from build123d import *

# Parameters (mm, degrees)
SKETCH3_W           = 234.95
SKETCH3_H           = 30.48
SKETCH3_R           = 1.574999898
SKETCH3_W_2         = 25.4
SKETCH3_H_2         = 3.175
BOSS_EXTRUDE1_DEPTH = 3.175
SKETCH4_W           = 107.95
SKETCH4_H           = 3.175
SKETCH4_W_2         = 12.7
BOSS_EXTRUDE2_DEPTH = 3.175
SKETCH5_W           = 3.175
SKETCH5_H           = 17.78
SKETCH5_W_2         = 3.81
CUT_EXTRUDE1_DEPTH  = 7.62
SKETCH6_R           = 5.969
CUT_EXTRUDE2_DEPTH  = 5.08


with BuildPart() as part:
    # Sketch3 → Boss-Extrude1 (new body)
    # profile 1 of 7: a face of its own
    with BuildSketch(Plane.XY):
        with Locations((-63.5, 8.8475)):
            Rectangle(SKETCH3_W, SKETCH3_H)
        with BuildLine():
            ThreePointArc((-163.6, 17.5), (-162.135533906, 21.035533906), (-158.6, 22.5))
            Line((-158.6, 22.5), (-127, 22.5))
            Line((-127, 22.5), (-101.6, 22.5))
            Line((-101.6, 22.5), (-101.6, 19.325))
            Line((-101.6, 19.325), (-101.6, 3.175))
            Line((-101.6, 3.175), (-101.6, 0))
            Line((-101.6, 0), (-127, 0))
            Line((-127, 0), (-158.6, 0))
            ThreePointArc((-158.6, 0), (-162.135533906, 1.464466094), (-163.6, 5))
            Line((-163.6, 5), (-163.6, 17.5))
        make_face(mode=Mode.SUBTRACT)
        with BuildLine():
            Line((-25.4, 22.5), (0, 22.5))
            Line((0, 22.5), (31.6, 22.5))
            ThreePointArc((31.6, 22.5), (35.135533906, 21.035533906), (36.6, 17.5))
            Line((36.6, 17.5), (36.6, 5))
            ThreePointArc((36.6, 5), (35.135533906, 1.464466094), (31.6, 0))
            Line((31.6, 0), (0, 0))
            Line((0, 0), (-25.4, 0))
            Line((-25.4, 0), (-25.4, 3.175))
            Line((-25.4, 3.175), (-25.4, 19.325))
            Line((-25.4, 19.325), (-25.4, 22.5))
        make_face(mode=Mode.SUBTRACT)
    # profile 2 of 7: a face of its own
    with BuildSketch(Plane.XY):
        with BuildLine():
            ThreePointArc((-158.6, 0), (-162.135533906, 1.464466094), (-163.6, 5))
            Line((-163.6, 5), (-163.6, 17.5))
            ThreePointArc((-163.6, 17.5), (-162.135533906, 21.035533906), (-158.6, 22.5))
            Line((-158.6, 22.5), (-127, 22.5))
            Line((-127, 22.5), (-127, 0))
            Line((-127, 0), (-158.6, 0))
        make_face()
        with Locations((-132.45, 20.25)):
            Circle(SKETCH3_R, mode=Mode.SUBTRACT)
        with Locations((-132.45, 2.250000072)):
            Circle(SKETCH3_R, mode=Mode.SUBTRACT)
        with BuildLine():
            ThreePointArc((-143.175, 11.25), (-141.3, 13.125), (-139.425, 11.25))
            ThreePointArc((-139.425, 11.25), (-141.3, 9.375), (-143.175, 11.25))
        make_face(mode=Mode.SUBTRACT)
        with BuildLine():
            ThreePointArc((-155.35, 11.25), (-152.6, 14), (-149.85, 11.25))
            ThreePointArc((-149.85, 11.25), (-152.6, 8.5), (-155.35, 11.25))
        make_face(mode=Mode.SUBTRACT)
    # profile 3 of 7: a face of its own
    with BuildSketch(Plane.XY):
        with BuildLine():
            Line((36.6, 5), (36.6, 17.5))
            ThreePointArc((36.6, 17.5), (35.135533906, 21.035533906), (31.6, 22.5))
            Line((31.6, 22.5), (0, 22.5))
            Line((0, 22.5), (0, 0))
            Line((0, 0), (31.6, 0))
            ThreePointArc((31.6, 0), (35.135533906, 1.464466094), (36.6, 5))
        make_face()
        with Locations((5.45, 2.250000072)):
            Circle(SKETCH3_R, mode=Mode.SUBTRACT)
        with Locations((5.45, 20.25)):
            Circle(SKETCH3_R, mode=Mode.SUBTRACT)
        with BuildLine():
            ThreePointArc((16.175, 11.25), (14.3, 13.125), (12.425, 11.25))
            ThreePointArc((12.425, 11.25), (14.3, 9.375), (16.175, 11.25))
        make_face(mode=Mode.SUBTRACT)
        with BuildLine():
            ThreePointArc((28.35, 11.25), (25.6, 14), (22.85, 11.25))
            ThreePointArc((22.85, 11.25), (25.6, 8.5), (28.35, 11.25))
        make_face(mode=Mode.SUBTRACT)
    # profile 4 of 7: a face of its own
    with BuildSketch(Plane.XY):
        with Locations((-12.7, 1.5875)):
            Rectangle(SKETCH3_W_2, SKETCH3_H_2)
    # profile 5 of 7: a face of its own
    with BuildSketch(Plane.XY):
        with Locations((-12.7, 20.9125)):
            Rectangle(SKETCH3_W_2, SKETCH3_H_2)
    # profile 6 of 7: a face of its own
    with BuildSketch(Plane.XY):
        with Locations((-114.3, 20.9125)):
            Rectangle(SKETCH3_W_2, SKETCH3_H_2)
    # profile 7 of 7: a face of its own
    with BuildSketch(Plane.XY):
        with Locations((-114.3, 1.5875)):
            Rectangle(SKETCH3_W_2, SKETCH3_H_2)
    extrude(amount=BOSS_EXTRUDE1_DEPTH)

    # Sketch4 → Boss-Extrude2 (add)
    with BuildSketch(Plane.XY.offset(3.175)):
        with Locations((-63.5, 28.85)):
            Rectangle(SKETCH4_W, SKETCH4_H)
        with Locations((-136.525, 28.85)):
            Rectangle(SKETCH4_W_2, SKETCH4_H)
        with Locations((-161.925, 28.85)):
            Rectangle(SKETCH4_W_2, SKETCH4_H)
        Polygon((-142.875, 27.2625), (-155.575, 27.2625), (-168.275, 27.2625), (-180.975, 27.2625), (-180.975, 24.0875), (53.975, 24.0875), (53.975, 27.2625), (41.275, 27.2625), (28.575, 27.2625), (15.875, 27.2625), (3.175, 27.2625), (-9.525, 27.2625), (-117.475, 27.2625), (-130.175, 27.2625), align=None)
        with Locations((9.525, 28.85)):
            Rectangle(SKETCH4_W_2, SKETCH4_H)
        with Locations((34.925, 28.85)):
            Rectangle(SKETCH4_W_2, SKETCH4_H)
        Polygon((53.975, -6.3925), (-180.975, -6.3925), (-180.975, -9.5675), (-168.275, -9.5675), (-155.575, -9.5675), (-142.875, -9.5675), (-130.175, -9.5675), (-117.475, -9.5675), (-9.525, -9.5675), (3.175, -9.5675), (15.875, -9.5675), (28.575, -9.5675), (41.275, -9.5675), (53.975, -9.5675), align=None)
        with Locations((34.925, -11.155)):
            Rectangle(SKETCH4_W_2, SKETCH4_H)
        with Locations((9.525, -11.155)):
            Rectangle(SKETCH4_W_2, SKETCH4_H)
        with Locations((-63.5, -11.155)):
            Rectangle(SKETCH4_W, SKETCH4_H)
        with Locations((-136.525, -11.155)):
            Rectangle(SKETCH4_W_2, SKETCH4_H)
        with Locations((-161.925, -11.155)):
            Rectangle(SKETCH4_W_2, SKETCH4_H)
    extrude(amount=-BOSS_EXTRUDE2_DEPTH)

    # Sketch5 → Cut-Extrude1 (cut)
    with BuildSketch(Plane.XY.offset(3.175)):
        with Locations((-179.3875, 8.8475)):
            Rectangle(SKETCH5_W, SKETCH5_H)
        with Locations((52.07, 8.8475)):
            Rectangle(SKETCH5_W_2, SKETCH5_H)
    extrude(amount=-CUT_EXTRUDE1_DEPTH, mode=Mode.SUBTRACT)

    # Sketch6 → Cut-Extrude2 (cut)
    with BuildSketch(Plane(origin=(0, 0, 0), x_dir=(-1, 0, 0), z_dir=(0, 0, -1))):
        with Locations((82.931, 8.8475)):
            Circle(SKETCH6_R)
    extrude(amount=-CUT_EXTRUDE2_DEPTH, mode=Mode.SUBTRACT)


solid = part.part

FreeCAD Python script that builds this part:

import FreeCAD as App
import Part
import Sketcher

V = App.Vector
Q = App.Units.Quantity


def add_polygon(sketch, points):
    """Adds a closed chain of lines whose ends are joined by coincident constraints."""
    first, n = sketch.GeometryCount, len(points)
    for a, b in zip(points, points[1:] + points[:1]):
        sketch.addGeometry(Part.LineSegment(App.Vector(*a, 0), App.Vector(*b, 0)), False)
    for i in range(n):
        sketch.addConstraint(Sketcher.Constraint("Coincident", first + i, 2, first + (i + 1) % n, 1))

doc = App.newDocument("Part")
body = doc.addObject("PartDesign::Body", "Body")

# Sketch on XY plane
sketch1 = body.newObject("Sketcher::SketchObject", "Sketch")
sketch1.AttachmentSupport = (doc.getObject("XY_Plane"), [""])
sketch1.MapMode = "FlatFace"
add_polygon(sketch1, [(-181, 24.1), (-181, -6.4), (54, -6.4), (54, 24.1)])  # lines 0-3
add_polygon(sketch1, [(-101.6, 19.3), (-101.6, 3.2), (-127, 3.2), (-127, 19.3)])  # lines 4-7
add_polygon(sketch1, [(-25.4, 3.2), (-25.4, 19.3), (0, 19.3), (0, 3.2)])  # lines 8-11
sketch1.addGeometry(Part.Circle(V(-152.6, 11.2, 0), V(0, 0, 1), 2.8), False)  # 12
sketch1.addGeometry(Part.Circle(V(-132.4, 2.3, 0), V(0, 0, 1), 1.6), False)  # 13
sketch1.addGeometry(Part.Circle(V(-132.4, 20.2, 0), V(0, 0, 1), 1.6), False)  # 14
sketch1.addGeometry(Part.Circle(V(-141.3, 11.2, 0), V(0, 0, 1), 1.9), False)  # 15
sketch1.addGeometry(Part.Circle(V(14.3, 11.2, 0), V(0, 0, 1), 1.9), False)  # 16
sketch1.addGeometry(Part.Circle(V(25.6, 11.2, 0), V(0, 0, 1), 2.8), False)  # 17
sketch1.addGeometry(Part.Circle(V(5.5, 2.3, 0), V(0, 0, 1), 1.6), False)  # 18
sketch1.addGeometry(Part.Circle(V(5.5, 20.2, 0), V(0, 0, 1), 1.6), False)  # 19
sketch1.addConstraint([
    Sketcher.Constraint("Vertical", 0),
    Sketcher.Constraint("Horizontal", 1),
    Sketcher.Constraint("Vertical", 2),
    Sketcher.Constraint("Horizontal", 3),
    Sketcher.Constraint("Vertical", 4),
    Sketcher.Constraint("Horizontal", 5),
    Sketcher.Constraint("Vertical", 6),
    Sketcher.Constraint("Horizontal", 7),
    Sketcher.Constraint("Vertical", 8),
    Sketcher.Constraint("Horizontal", 9),
    Sketcher.Constraint("Vertical", 10),
    Sketcher.Constraint("Horizontal", 11),
    Sketcher.Constraint("Equal", 13, 14),
    Sketcher.Constraint("Equal", 15, 16),
    Sketcher.Constraint("Equal", 12, 17),
    Sketcher.Constraint("Equal", 14, 18),
    Sketcher.Constraint("Equal", 18, 19),
    Sketcher.Constraint("PointOnObject", 9, 2, -2),
    Sketcher.Constraint("Horizontal", 12, 3, 15, 3),
    Sketcher.Constraint("Horizontal", 15, 3, 16, 3),
    Sketcher.Constraint("Horizontal", 16, 3, 17, 3),
    Sketcher.Constraint("Horizontal", 13, 3, 18, 3),
    Sketcher.Constraint("Horizontal", 14, 3, 19, 3),
    Sketcher.Constraint("Horizontal", 7, 2, 8, 2),
    Sketcher.Constraint("Horizontal", 5, 2, 10, 2),
    Sketcher.Constraint("Vertical", 13, 3, 14, 3),
    Sketcher.Constraint("Vertical", 18, 3, 19, 3),
    Sketcher.Constraint("Equal", 7, 9),
    Sketcher.Constraint("DistanceX", 5, 2, 5, 1, Q("1 in")),
    Sketcher.Constraint("DistanceY", 0, 2, 0, 1, Q("1.2 in")),
    Sketcher.Constraint("DistanceX", 4, 2, -1, 1, Q("4 in")),
    Sketcher.Constraint("DistanceX", 1, 1, 1, 2, Q("9.25 in")),
    Sketcher.Constraint("Diameter", 12, Q("5.5 mm")),
    Sketcher.Constraint("Diameter", 13, Q("3.15 mm")),
    Sketcher.Constraint("Diameter", 15, Q("3.75 mm")),
    Sketcher.Constraint("DistanceX", 0, 2, -1, 1, Q("7.125 in")),
    Sketcher.Constraint("DistanceY", -1, 1, 4, 2, Q("0.125 in")),
    Sketcher.Constraint("DistanceY", 4, 2, 4, 1, Q("16.15 mm")),
    Sketcher.Constraint("DistanceX", 12, 3, -1, 1, Q("152.6 mm")),
    Sketcher.Constraint("DistanceY", -1, 1, 12, 3, Q("11.25 mm")),
    Sketcher.Constraint("DistanceX", 13, 3, -1, 1, Q("132.45 mm")),
    Sketcher.Constraint("DistanceY", -1, 1, 13, 3, Q("2.25 mm")),
    Sketcher.Constraint("DistanceY", -1, 1, 14, 3, Q("20.25 mm")),
    Sketcher.Constraint("DistanceX", 15, 3, -1, 1, Q("141.3 mm")),
    Sketcher.Constraint("DistanceX", -1, 1, 16, 3, Q("14.3 mm")),
    Sketcher.Constraint("DistanceX", -1, 1, 17, 3, Q("25.6 mm")),
    Sketcher.Constraint("DistanceX", -1, 1, 18, 3, Q("5.45 mm")),
    Sketcher.Constraint("DistanceY", 0, 2, -1, 1, Q("6.3925 mm")),
])
pad1 = body.newObject("PartDesign::Pad", "Pad")
pad1.Profile = sketch1
pad1.Length = Q("0.125 in")

# Sketch on XY plane
sketch2 = body.newObject("Sketcher::SketchObject", "Sketch001")
sketch2.AttachmentSupport = (doc.getObject("XY_Plane"), [""])
sketch2.MapMode = "FlatFace"
sketch2.AttachmentOffset = App.Placement(V(0, 0, 0.125 * 25.4), App.Rotation())
add_polygon(sketch2, [(-117.5, 30.4), (-117.5, 27.3), (-130.2, 27.3), (-130.2, 30.4), (-142.9, 30.4), (-142.9, 27.3), (-155.6, 27.3), (-155.6, 30.4), (-168.3, 30.4), (-168.3, 27.3), (-181, 27.3), (-181, 24.1), (54, 24.1), (54, 27.3), (41.3, 27.3), (41.3, 30.4), (28.6, 30.4), (28.6, 27.3), (15.9, 27.3), (15.9, 30.4), (3.2, 30.4), (3.2, 27.3), (-9.5, 27.3), (-9.5, 30.4)])  # lines 0-23
add_polygon(sketch2, [(54, -6.4), (-181, -6.4), (-181, -9.6), (-168.3, -9.6), (-168.3, -12.7), (-155.6, -12.7), (-155.6, -9.6), (-142.9, -9.6), (-142.9, -12.7), (-130.2, -12.7), (-130.2, -9.6), (-117.5, -9.6), (-117.5, -12.7), (-9.5, -12.7), (-9.5, -9.6), (3.2, -9.6), (3.2, -12.7), (15.9, -12.7), (15.9, -9.6), (28.6, -9.6), (28.6, -12.7), (41.3, -12.7), (41.3, -9.6), (54, -9.6)])  # lines 24-47
sketch2.addConstraint([
    Sketcher.Constraint("Vertical", 0),
    Sketcher.Constraint("Horizontal", 1),
    Sketcher.Constraint("Vertical", 2),
    Sketcher.Constraint("Horizontal", 3),
    Sketcher.Constraint("Vertical", 4),
    Sketcher.Constraint("Horizontal", 5),
    Sketcher.Constraint("Vertical", 6),
    Sketcher.Constraint("Horizontal", 7),
    Sketcher.Constraint("Vertical", 8),
    Sketcher.Constraint("Horizontal", 9),
    Sketcher.Constraint("Vertical", 10),
    Sketcher.Constraint("Horizontal", 11),
    Sketcher.Constraint("Vertical", 12),
    Sketcher.Constraint("Horizontal", 13),
    Sketcher.Constraint("Vertical", 14),
    Sketcher.Constraint("Horizontal", 15),
    Sketcher.Constraint("Vertical", 16),
    Sketcher.Constraint("Horizontal", 17),
    Sketcher.Constraint("Vertical", 18),
    Sketcher.Constraint("Horizontal", 19),
    Sketcher.Constraint("Vertical", 20),
    Sketcher.Constraint("Horizontal", 21),
    Sketcher.Constraint("Vertical", 22),
    Sketcher.Constraint("Horizontal", 23),
    Sketcher.Constraint("Horizontal", 24),
    Sketcher.Constraint("Vertical", 25),
    Sketcher.Constraint("Horizontal", 26),
    Sketcher.Constraint("Vertical", 27),
    Sketcher.Constraint("Horizontal", 28),
    Sketcher.Constraint("Vertical", 29),
    Sketcher.Constraint("Horizontal", 30),
    Sketcher.Constraint("Vertical", 31),
    Sketcher.Constraint("Horizontal", 32),
    Sketcher.Constraint("Vertical", 33),
    Sketcher.Constraint("Horizontal", 34),
    Sketcher.Constraint("Vertical", 35),
    Sketcher.Constraint("Horizontal", 36),
    Sketcher.Constraint("Vertical", 37),
    Sketcher.Constraint("Horizontal", 38),
    Sketcher.Constraint("Vertical", 39),
    Sketcher.Constraint("Horizontal", 40),
    Sketcher.Constraint("Vertical", 41),
    Sketcher.Constraint("Horizontal", 42),
    Sketcher.Constraint("Vertical", 43),
    Sketcher.Constraint("Horizontal", 44),
    Sketcher.Constraint("Vertical", 45),
    Sketcher.Constraint("Horizontal", 46),
    Sketcher.Constraint("Vertical", 47),
    Sketcher.Constraint("Horizontal", 1, 2, 4, 2),
    Sketcher.Constraint("Horizontal", 3, 2, 6, 2),
    Sketcher.Constraint("Horizontal", 5, 2, 8, 2),
    Sketcher.Constraint("Horizontal", 9, 2, 12, 2),
    Sketcher.Constraint("Horizontal", 7, 2, 14, 2),
    Sketcher.Constraint("Horizontal", 13, 2, 16, 2),
    Sketcher.Constraint("Horizontal", 15, 2, 18, 2),
    Sketcher.Constraint("Horizontal", 17, 2, 20, 2),
    Sketcher.Constraint("Horizontal", 19, 2, 22, 2),
    Sketcher.Constraint("Horizontal", 26, 2, 29, 2),
    Sketcher.Constraint("Horizontal", 28, 2, 31, 2),
    Sketcher.Constraint("Horizontal", 30, 2, 33, 2),
    Sketcher.Constraint("Horizontal", 32, 2, 35, 2),
    Sketcher.Constraint("Horizontal", 34, 2, 37, 2),
    Sketcher.Constraint("Horizontal", 36, 2, 39, 2),
    Sketcher.Constraint("Horizontal", 38, 2, 41, 2),
    Sketcher.Constraint("Horizontal", 40, 2, 43, 2),
    Sketcher.Constraint("Horizontal", 42, 2, 45, 2),
    Sketcher.Constraint("Vertical", 10, 2, 24, 2),
    Sketcher.Constraint("Vertical", 8, 2, 26, 2),
    Sketcher.Constraint("Vertical", 6, 2, 28, 2),
    Sketcher.Constraint("Vertical", 4, 2, 30, 2),
    Sketcher.Constraint("Vertical", 2, 2, 32, 2),
    Sketcher.Constraint("Vertical", 23, 2, 34, 2),
    Sketcher.Constraint("Vertical", 22, 2, 36, 2),
    Sketcher.Constraint("Vertical", 20, 2, 38, 2),
    Sketcher.Constraint("Vertical", 18, 2, 40, 2),
    Sketcher.Constraint("Vertical", 16, 2, 42, 2),
    Sketcher.Constraint("Vertical", 14, 2, 44, 2),
    Sketcher.Constraint("Vertical", 12, 2, 46, 2),
    Sketcher.Constraint("Equal", 1, 3),
    Sketcher.Constraint("Equal", 3, 5),
    Sketcher.Constraint("Equal", 5, 7),
    Sketcher.Constraint("Equal", 7, 9),
    Sketcher.Constraint("Equal", 9, 13),
    Sketcher.Constraint("Equal", 13, 15),
    Sketcher.Constraint("Equal", 15, 17),
    Sketcher.Constraint("Equal", 17, 19),
    Sketcher.Constraint("Equal", 19, 21),
    Sketcher.Constraint("Equal", 8, 10),
    Sketcher.Constraint("Equal", 22, 25),
    Sketcher.Constraint("Equal", 25, 27),
    Sketcher.Constraint("DistanceX", 1, 2, 1, 1, Q("0.5 in")),
    Sketcher.Constraint("DistanceX", 11, 1, 11, 2, Q("9.25 in")),
    Sketcher.Constraint("DistanceY", 24, 2, 10, 2, Q("1.2 in")),
    Sketcher.Constraint("DistanceY", 36, 2, 22, 2, Q("1.7 in")),
    Sketcher.Constraint("DistanceX", 0, 2, -1, 1, Q("4.625 in")),
    Sketcher.Constraint("DistanceY", -1, 1, 0, 2, Q("27.2625 mm")),
])
pad2 = body.newObject("PartDesign::Pad", "Pad001")
pad2.Profile = sketch2
pad2.Length = Q("0.125 in")
pad2.Reversed = True

# Sketch on XY plane
sketch3 = body.newObject("Sketcher::SketchObject", "Sketch002")
sketch3.AttachmentSupport = (doc.getObject("XY_Plane"), [""])
sketch3.MapMode = "FlatFace"
sketch3.AttachmentOffset = App.Placement(V(0, 0, 0.125 * 25.4), App.Rotation())
add_polygon(sketch3, [(-181, 17.7), (-181, 0), (-177.8, 0), (-177.8, 17.7)])  # lines 0-3
add_polygon(sketch3, [(50.2, 17.7), (50.2, 0), (54, 0), (54, 17.7)])  # lines 4-7
sketch3.addConstraint([
    Sketcher.Constraint("Vertical", 0),
    Sketcher.Constraint("Horizontal", 1),
    Sketcher.Constraint("Vertical", 2),
    Sketcher.Constraint("Horizontal", 3),
    Sketcher.Constraint("Vertical", 4),
    Sketcher.Constraint("Horizontal", 5),
    Sketcher.Constraint("Vertical", 6),
    Sketcher.Constraint("Horizontal", 7),
    Sketcher.Constraint("Horizontal", 1, 2, 4, 2),
    Sketcher.Constraint("Horizontal", 3, 2, 6, 2),
    Sketcher.Constraint("DistanceY", 0, 2, 0, 1, Q("0.7 in")),
    Sketcher.Constraint("DistanceX", 1, 2, -1, 1, Q("7 in")),
    Sketcher.Constraint("DistanceX", 5, 1, 5, 2, Q("0.15 in")),
    Sketcher.Constraint("DistanceX", 0, 2, 4, 2, Q("9.1 in")),
    Sketcher.Constraint("DistanceX", 1, 1, 1, 2, Q("0.125 in")),
    Sketcher.Constraint("DistanceY", 0, 2, -1, 1, Q("0.0425 mm")),
])
pocket1 = body.newObject("PartDesign::Pocket", "Pocket")
pocket1.Profile = sketch3
pocket1.Length = Q("0.3 in")

# Sketch on XY plane
sketch4 = body.newObject("Sketcher::SketchObject", "Sketch003")
sketch4.AttachmentSupport = (doc.getObject("XY_Plane"), [""])
sketch4.MapMode = "FlatFace"
sketch4.addGeometry(Part.Circle(V(-83, 9, 0), V(0, 0, 1), 6), False)
sketch4.addConstraint([
    Sketcher.Constraint("Diameter", 0, Q("0.47 in")),
    Sketcher.Constraint("DistanceX", 0, 3, -1, 1, Q("3.265 in")),
    Sketcher.Constraint("DistanceY", -1, 1, 0, 3, Q("8.8475 mm")),
])
pocket2 = body.newObject("PartDesign::Pocket", "Pocket001")
pocket2.Profile = sketch4
pocket2.Length = Q("0.2 in")
pocket2.Reversed = True

doc.recompute()
